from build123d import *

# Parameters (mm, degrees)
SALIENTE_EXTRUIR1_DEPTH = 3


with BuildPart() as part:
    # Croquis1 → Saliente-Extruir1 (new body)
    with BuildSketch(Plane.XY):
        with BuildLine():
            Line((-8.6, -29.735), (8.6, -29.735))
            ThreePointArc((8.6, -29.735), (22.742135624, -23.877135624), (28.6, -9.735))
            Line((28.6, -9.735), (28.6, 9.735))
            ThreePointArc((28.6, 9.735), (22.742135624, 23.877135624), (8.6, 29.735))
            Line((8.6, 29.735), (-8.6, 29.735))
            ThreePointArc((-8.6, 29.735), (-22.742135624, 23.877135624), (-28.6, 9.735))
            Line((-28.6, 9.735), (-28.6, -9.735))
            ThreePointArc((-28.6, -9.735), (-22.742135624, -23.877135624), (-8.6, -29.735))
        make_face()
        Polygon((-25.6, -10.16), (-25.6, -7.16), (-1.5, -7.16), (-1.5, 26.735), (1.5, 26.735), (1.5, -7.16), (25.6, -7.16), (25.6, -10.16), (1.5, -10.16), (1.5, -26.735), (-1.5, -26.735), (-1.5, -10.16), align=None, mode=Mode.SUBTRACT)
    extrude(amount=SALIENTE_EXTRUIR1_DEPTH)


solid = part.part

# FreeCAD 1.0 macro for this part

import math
import FreeCAD as App
import Part
import Sketcher


def add_polygon(sketch, points):
    """Adds a closed chain of lines whose ends are joined by coincident constraints."""
    first, n = sketch.GeometryCount, len(points)
    for a, b in zip(points, points[1:] + points[:1]):
        sketch.addGeometry(Part.LineSegment(App.Vector(*a, 0), App.Vector(*b, 0)), False)
    for i in range(n):
        sketch.addConstraint(Sketcher.Constraint("Coincident", first + i, 2, first + (i + 1) % n, 1))

doc = App.newDocument("Part")
body = doc.addObject("PartDesign::Body", "Body")

# Sketch on XY plane
sketch1 = body.newObject("Sketcher::SketchObject", "Sketch")
sketch1.AttachmentSupport = (doc.getObject("XY_Plane"), [""])
sketch1.MapMode = "FlatFace"
sketch1.addGeometry(Part.LineSegment(App.Vector(-8.6, -29.7, 0), App.Vector(8.6, -29.7, 0)), False)  # 0
sketch1.addGeometry(Part.ArcOfCircle(Part.Circle(App.Vector(8.6, -9.7, 0), App.Vector(0, 0, 1), 20), math.radians(-90), math.radians(0)), False)  # 1
sketch1.addGeometry(Part.LineSegment(App.Vector(28.6, -9.7, 0), App.Vector(28.6, 9.7, 0)), False)  # 2
sketch1.addGeometry(Part.ArcOfCircle(Part.Circle(App.Vector(8.6, 9.7, 0), App.Vector(0, 0, 1), 20), math.radians(0), math.radians(90)), False)  # 3
sketch1.addGeometry(Part.LineSegment(App.Vector(8.6, 29.7, 0), App.Vector(-8.6, 29.7, 0)), False)  # 4
sketch1.addGeometry(Part.ArcOfCircle(Part.Circle(App.Vector(-8.6, 9.7, 0), App.Vector(0, 0, 1), 20), math.radians(90), math.radians(180)), False)  # 5
sketch1.addGeometry(Part.LineSegment(App.Vector(-28.6, 9.7, 0), App.Vector(-28.6, -9.7, 0)), False)  # 6
sketch1.addGeometry(Part.ArcOfCircle(Part.Circle(App.Vector(-8.6, -9.7, 0), App.Vector(0, 0, 1), 20), math.radians(180), math.radians(270)), False)  # 7
add_polygon(sketch1, [(-1.5, -10.2), (-25.6, -10.2), (-25.6, -7.2), (-1.5, -7.2), (-1.5, 26.7), (1.5, 26.7), (1.5, -7.2), (25.6, -7.2), (25.6, -10.2), (1.5, -10.2), (1.5, -26.7), (-1.5, -26.7)])  # lines 8-19
sketch1.addConstraint([
    Sketcher.Constraint("Tangent", 0, 2, 1, 1),
    Sketcher.Constraint("Tangent", 1, 2, 2, 1),
    Sketcher.Constraint("Tangent", 2, 2, 3, 1),
    Sketcher.Constraint("Tangent", 3, 2, 4, 1),
    Sketcher.Constraint("Tangent", 4, 2, 5, 1),
    Sketcher.Constraint("Tangent", 5, 2, 6, 1),
    Sketcher.Constraint("Tangent", 6, 2, 7, 1),
    Sketcher.Constraint("Tangent", 7, 2, 0, 1),
    Sketcher.Constraint("Horizontal", 0),
    Sketcher.Constraint("Vertical", 2),
    Sketcher.Constraint("Horizontal", 4),
    Sketcher.Constraint("Vertical", 6),
    Sketcher.Constraint("Horizontal", 8),
    Sketcher.Constraint("Vertical", 9),
    Sketcher.Constraint("Horizontal", 10),
    Sketcher.Constraint("Vertical", 11),
    Sketcher.Constraint("Horizontal", 12),
    Sketcher.Constraint("Vertical", 13),
    Sketcher.Constraint("Horizontal", 14),
    Sketcher.Constraint("Vertical", 15),
    Sketcher.Constraint("Horizontal", 16),
    Sketcher.Constraint("Vertical", 17),
    Sketcher.Constraint("Horizontal", 18),
    Sketcher.Constraint("Vertical", 19),
    Sketcher.Constraint("Equal", 1, 3),
    Sketcher.Constraint("Equal", 3, 5),
    Sketcher.Constraint("Equal", 5, 7),
    Sketcher.Constraint("Symmetric", 1, 3, 5, 3, -1, 1),
    Sketcher.Constraint("Symmetric", 11, 2, 17, 2, -1, 1),
    Sketcher.Constraint("Symmetric", 10, 2, 13, 2, -2),
    Sketcher.Constraint("Symmetric", 8, 2, 15, 2, -2),
    Sketcher.Constraint("Vertical", 11, 2, 18, 2),
    Sketcher.Constraint("Equal", 18, 9),
    Sketcher.Constraint("Radius", 1, 20.0),
    Sketcher.Constraint("DistanceX", 12, 1, 12, 2, 3.0),
    Sketcher.Constraint("DistanceX", 0, 1, 0, 2, 17.2),
    Sketcher.Constraint("DistanceX", 8, 2, 8, 1, 24.1),
    Sketcher.Constraint("DistanceY", 11, 2, 4, 2, 3.0),
    Sketcher.Constraint("DistanceY", 2, 1, 2, 2, 19.47),
    Sketcher.Constraint("DistanceY", 11, 1, 11, 2, 33.895),
])
pad1 = body.newObject("PartDesign::Pad", "Pad")
pad1.Profile = sketch1
pad1.Length = 3

doc.recompute()
